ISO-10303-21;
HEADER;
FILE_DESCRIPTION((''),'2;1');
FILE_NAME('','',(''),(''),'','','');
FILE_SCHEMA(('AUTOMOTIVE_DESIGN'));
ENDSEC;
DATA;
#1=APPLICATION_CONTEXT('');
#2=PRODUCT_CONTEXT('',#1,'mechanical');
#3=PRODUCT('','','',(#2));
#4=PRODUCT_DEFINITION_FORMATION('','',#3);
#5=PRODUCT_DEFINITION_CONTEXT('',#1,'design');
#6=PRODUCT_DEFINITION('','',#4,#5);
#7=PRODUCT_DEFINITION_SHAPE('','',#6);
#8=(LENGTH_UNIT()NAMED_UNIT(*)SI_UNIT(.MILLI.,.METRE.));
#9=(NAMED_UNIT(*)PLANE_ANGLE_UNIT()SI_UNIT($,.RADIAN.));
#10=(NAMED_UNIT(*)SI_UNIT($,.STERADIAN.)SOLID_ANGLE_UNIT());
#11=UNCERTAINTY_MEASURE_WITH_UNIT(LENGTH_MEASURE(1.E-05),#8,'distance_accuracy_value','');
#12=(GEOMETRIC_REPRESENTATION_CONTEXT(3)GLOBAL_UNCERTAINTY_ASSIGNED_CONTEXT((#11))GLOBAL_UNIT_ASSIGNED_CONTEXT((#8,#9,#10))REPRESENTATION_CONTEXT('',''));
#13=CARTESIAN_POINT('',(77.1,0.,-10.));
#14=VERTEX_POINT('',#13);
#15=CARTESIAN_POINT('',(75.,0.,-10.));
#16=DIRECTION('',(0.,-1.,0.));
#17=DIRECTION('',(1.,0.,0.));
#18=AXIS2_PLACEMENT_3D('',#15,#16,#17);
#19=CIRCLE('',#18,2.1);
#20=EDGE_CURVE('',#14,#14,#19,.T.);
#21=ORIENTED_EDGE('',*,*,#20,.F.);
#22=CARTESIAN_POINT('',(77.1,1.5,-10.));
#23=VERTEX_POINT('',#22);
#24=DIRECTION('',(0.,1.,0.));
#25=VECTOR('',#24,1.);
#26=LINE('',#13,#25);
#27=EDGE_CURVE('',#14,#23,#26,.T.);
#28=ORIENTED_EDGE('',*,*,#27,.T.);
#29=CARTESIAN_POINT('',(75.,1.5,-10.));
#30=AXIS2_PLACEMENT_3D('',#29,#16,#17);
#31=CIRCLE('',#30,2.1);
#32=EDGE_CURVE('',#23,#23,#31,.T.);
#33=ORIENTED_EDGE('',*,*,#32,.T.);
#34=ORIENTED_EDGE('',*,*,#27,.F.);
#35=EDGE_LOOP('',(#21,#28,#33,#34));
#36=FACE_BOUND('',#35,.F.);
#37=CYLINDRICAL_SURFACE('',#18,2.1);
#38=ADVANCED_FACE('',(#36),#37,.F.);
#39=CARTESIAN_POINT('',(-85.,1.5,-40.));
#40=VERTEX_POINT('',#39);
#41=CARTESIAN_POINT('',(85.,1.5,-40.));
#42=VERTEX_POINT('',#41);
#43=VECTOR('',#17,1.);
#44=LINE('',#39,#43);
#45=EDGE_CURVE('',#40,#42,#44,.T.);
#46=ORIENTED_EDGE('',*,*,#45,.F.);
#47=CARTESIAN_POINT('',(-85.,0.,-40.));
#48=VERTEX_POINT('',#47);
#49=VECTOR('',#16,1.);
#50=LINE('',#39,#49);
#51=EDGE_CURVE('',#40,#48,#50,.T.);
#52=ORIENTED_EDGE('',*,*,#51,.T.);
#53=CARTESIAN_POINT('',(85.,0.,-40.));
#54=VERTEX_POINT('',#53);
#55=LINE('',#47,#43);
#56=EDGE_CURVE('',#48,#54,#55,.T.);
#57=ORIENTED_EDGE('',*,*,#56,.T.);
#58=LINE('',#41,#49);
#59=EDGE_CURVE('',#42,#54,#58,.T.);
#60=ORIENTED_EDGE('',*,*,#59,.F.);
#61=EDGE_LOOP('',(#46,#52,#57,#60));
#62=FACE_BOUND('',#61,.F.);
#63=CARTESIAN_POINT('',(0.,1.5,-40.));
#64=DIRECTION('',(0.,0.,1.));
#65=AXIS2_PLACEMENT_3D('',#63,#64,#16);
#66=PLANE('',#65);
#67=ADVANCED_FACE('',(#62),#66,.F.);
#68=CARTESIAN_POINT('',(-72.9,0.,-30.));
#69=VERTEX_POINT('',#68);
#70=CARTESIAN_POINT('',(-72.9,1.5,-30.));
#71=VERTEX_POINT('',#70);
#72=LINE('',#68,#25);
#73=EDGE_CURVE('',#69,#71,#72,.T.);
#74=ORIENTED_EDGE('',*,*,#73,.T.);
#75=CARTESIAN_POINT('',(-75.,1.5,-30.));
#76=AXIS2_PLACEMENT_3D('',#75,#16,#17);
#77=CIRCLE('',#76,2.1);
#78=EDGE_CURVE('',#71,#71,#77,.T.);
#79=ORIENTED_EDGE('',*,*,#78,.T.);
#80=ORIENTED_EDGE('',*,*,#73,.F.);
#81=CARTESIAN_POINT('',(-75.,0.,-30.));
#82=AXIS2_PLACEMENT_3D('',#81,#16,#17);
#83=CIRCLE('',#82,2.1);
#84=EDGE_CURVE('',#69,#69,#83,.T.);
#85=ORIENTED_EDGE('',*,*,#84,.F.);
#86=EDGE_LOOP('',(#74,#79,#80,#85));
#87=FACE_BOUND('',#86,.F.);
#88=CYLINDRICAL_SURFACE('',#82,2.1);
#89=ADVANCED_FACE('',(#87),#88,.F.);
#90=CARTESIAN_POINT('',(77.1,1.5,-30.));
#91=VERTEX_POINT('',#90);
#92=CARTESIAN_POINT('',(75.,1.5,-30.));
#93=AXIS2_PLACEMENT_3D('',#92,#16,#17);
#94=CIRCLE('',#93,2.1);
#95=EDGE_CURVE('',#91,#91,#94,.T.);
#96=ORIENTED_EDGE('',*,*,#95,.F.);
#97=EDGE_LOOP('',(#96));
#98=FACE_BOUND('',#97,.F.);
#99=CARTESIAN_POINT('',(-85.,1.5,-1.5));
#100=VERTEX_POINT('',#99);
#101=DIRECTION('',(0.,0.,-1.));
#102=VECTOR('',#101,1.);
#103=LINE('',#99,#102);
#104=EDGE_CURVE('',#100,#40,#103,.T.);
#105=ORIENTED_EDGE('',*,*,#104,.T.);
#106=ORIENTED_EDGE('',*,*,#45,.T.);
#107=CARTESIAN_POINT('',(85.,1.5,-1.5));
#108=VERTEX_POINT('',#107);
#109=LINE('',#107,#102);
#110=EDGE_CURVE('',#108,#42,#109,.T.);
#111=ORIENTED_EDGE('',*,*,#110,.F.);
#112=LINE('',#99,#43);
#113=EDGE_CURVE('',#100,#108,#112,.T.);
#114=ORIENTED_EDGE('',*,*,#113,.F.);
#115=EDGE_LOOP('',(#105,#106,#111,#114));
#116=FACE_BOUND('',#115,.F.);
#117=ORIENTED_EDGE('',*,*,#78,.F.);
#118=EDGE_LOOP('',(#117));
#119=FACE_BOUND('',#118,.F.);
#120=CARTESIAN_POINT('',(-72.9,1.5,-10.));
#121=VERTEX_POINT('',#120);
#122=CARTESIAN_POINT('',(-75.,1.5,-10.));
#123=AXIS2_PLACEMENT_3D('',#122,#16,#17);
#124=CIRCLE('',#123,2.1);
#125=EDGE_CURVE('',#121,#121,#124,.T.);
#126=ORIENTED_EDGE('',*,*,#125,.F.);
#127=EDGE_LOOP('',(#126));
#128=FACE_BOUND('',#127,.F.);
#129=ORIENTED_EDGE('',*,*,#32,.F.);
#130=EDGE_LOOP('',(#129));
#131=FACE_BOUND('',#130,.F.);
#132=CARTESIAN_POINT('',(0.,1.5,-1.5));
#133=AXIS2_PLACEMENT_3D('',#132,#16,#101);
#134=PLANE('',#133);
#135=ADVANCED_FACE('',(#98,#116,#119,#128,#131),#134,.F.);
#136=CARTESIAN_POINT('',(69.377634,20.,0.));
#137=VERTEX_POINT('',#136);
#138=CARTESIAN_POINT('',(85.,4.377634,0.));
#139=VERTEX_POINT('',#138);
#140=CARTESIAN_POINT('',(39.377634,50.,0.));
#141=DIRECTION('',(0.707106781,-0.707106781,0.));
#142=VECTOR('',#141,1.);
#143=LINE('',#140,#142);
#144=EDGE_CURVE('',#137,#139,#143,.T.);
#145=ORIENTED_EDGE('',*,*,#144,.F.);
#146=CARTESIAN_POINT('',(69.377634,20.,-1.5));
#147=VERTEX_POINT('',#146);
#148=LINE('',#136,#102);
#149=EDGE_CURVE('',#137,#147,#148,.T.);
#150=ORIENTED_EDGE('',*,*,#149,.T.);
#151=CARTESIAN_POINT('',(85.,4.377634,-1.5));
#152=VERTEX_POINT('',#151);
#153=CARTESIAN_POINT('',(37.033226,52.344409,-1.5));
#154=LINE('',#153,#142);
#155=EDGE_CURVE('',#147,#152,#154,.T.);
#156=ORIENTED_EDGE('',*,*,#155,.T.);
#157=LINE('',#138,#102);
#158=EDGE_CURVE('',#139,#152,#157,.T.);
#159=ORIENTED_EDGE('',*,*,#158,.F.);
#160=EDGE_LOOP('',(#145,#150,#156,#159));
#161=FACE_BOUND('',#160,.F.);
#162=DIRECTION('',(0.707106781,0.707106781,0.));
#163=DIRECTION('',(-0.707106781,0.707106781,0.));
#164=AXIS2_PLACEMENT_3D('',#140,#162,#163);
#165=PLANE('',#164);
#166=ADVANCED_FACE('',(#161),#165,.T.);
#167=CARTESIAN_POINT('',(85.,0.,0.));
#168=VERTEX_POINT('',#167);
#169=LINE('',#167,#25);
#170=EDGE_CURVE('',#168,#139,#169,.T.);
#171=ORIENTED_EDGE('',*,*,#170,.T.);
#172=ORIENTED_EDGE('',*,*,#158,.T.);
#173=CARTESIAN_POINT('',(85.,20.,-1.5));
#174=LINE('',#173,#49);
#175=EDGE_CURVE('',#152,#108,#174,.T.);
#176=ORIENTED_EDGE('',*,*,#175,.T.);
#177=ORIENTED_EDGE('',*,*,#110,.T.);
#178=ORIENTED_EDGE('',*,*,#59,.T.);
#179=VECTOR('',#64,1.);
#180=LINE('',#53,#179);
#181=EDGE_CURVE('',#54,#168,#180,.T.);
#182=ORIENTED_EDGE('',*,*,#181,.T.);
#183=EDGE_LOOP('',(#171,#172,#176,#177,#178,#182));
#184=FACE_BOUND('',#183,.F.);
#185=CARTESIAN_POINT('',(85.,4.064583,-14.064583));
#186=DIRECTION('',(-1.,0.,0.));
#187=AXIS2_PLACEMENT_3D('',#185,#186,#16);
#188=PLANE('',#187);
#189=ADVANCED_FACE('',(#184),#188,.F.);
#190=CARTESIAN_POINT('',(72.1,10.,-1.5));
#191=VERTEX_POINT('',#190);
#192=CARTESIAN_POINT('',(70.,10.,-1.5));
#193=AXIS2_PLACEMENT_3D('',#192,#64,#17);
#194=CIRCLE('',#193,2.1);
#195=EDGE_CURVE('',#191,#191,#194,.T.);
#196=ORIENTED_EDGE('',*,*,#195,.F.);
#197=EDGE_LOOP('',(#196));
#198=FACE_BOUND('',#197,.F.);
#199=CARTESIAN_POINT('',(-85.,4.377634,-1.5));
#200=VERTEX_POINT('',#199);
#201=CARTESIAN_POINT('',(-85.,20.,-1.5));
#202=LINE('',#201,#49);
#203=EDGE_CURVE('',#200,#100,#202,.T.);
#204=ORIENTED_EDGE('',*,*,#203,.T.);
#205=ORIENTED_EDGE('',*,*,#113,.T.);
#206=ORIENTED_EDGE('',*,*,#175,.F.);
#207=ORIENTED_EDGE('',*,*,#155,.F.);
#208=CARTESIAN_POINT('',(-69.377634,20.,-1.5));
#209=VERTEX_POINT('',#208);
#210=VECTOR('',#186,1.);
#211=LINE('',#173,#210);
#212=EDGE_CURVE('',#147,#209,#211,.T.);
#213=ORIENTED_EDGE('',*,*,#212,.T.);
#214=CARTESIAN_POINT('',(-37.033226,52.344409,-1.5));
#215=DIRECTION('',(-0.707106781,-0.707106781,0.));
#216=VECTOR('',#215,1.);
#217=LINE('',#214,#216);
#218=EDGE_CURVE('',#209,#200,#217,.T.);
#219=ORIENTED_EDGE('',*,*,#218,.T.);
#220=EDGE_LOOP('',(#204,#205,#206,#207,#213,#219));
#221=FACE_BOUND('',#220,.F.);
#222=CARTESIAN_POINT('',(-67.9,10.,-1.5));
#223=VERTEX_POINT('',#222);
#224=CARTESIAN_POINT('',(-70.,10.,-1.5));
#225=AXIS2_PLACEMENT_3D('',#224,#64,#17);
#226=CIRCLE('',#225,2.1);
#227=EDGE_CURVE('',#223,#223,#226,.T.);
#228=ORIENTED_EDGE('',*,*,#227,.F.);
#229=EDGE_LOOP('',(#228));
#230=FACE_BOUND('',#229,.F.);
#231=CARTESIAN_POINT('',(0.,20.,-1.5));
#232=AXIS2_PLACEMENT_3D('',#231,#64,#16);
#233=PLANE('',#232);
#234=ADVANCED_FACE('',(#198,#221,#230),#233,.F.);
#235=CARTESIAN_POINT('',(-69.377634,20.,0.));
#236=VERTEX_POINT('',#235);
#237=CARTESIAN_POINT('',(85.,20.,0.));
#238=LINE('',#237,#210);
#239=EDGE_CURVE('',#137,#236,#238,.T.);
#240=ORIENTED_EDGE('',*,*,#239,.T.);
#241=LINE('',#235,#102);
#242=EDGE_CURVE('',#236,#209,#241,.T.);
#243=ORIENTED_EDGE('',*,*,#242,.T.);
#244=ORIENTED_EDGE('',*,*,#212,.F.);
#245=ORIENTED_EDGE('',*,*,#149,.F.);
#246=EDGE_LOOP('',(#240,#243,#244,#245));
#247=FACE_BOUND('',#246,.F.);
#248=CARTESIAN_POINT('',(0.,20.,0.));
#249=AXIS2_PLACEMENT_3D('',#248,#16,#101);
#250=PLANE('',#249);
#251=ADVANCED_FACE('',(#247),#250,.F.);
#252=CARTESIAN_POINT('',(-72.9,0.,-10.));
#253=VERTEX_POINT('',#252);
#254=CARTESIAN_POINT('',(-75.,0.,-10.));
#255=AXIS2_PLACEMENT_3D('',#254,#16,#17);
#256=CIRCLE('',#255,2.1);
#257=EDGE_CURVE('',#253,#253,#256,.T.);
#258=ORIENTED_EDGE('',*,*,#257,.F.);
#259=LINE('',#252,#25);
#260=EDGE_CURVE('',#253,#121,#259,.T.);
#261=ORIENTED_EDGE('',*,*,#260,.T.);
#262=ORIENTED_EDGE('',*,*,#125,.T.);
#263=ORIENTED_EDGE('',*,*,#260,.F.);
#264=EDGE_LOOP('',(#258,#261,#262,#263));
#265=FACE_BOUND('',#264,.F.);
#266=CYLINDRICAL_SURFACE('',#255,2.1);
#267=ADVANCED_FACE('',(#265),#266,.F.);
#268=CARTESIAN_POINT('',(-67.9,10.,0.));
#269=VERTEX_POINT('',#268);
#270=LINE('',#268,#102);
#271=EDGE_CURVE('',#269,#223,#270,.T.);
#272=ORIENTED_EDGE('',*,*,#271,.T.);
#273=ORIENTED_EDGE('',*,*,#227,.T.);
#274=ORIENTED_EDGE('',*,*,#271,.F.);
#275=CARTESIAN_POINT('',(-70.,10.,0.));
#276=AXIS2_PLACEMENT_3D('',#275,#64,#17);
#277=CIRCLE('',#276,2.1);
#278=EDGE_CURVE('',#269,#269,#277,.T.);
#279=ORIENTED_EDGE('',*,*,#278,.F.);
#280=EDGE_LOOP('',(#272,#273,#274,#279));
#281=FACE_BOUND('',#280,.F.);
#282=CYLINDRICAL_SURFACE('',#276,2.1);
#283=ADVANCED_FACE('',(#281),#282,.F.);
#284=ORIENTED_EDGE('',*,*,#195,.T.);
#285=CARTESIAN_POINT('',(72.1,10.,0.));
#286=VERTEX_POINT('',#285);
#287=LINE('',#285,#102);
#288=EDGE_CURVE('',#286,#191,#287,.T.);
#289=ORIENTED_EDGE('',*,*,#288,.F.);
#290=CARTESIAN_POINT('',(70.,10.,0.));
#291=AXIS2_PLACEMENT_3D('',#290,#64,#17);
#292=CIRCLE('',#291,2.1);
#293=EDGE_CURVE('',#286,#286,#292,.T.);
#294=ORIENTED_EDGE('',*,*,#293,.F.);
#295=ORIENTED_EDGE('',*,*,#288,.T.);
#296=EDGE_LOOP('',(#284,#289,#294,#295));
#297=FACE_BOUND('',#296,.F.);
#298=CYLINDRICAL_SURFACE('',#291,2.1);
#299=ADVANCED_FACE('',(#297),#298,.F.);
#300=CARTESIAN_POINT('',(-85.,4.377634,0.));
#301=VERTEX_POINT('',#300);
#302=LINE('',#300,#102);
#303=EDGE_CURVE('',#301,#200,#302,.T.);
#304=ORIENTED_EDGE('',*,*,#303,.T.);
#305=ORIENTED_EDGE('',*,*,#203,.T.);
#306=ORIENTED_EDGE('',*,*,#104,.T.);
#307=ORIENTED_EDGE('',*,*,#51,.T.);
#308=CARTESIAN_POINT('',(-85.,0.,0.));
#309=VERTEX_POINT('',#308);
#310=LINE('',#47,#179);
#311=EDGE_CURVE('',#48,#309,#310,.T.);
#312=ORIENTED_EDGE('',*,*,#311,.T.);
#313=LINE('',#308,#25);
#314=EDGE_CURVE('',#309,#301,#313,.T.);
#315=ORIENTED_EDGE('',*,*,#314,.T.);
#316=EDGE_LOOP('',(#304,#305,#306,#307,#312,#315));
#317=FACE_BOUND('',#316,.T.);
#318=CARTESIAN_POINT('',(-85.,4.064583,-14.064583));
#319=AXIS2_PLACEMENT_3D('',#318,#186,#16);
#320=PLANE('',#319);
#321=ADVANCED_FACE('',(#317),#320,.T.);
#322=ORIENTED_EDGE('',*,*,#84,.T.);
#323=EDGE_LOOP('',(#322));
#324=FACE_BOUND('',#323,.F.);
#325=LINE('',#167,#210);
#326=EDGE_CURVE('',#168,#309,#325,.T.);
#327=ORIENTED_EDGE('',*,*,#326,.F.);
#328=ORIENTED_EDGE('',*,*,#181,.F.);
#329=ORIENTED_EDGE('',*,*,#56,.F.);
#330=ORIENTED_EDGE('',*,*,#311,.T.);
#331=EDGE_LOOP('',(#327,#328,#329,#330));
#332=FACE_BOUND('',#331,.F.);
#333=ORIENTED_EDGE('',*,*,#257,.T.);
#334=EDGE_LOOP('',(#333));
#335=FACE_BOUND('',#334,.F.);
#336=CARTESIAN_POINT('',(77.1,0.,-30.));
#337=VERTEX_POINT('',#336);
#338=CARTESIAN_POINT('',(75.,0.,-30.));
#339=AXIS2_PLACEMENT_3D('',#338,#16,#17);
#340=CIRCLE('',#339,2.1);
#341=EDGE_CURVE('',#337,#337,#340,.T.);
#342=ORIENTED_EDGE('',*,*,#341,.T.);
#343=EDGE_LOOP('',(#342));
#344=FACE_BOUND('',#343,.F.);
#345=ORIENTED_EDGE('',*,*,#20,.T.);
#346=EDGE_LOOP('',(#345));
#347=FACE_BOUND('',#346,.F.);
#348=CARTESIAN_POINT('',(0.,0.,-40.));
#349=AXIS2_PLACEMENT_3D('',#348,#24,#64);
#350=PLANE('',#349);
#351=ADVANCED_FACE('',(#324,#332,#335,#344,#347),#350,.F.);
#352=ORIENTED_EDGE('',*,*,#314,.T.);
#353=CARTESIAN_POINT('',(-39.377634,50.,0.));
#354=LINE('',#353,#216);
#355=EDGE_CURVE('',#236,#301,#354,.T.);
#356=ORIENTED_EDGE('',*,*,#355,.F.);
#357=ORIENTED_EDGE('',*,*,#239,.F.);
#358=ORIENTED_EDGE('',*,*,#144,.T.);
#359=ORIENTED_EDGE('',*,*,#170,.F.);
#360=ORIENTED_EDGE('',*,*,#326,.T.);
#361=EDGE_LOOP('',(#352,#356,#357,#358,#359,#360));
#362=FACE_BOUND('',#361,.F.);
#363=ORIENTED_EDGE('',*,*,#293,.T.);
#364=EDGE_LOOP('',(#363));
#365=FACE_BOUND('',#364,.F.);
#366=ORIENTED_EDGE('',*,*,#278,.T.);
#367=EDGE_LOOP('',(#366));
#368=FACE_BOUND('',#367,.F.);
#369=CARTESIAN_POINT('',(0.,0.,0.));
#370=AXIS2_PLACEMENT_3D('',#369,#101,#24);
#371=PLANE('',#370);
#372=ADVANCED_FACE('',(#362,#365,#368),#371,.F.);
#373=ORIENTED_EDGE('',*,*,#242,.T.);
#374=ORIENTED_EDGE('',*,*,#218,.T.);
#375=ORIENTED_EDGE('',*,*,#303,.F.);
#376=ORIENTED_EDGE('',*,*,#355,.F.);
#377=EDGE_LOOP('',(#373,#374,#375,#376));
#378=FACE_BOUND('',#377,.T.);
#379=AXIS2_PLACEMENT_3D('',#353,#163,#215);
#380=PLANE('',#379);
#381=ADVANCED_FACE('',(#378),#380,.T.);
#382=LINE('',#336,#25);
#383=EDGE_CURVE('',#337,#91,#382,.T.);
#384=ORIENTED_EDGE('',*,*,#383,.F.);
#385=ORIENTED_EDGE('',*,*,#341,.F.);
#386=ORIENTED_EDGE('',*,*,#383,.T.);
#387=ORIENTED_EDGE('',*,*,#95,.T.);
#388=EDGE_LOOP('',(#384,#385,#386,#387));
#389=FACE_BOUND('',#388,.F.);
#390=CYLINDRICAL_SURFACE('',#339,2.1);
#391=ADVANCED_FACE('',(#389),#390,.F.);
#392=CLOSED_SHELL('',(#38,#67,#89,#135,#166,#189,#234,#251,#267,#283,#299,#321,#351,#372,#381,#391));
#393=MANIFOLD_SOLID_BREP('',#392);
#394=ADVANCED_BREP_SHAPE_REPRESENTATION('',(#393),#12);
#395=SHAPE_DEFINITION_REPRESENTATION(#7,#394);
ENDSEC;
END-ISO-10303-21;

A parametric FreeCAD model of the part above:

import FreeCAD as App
import Part
import Sketcher

V = App.Vector
Q = App.Units.Quantity

doc = App.newDocument("Part")
params = doc.addObject("Spreadsheet::Sheet", "Params")
for row, (alias, value) in enumerate([
    ("sketch1_width", "20 mm"),
    ("sketch1_height", "40 mm"),
    ("sketch1_width2", "1.5 mm"),
    ("pad1_length", "170 mm"),
    ("sketch2_diameter", "4.2 mm"),
    ("sketch3_diameter", "4.2 mm"),
], start=1):
    params.set(f"A{row}", alias)
    params.set(f"B{row}", "=" + value)
    params.setAlias(f"B{row}", alias)

body = doc.addObject("PartDesign::Body", "Body")

# Sketch on YZ plane
sketch1 = body.newObject("Sketcher::SketchObject", "Sketch")
sketch1.AttachmentSupport = (doc.getObject("YZ_Plane"), [""])
sketch1.MapMode = "FlatFace"
sketch1.addGeometry(Part.LineSegment(V(0, 0, 0), V(0, -40, 0)), False)
sketch1.addGeometry(Part.LineSegment(V(0, -40, 0), V(1.5, -40, 0)), False)
sketch1.addGeometry(Part.LineSegment(V(1.5, -40, 0), V(1.5, -1.5, 0)), False)
sketch1.addGeometry(Part.LineSegment(V(1.5, -1.5, 0), V(20, -1.5, 0)), False)
sketch1.addGeometry(Part.LineSegment(V(20, -1.5, 0), V(20, 0, 0)), False)
sketch1.addGeometry(Part.LineSegment(V(20, 0, 0), V(0, 0, 0)), False)
sketch1.addConstraint(Sketcher.Constraint("Coincident", 0, 2, 1, 1))
sketch1.addConstraint(Sketcher.Constraint("Coincident", 1, 2, 2, 1))
sketch1.addConstraint(Sketcher.Constraint("Coincident", 2, 2, 3, 1))
sketch1.addConstraint(Sketcher.Constraint("Coincident", 3, 2, 4, 1))
sketch1.addConstraint(Sketcher.Constraint("Coincident", 4, 2, 5, 1))
sketch1.addConstraint(Sketcher.Constraint("Coincident", 5, 2, 0, 1))
sketch1.addConstraint(Sketcher.Constraint("Vertical", 0))
sketch1.addConstraint(Sketcher.Constraint("Horizontal", 1))
sketch1.addConstraint(Sketcher.Constraint("Vertical", 2))
sketch1.addConstraint(Sketcher.Constraint("Horizontal", 3))
sketch1.addConstraint(Sketcher.Constraint("Vertical", 4))
sketch1.addConstraint(Sketcher.Constraint("Horizontal", 5))
sketch1.addConstraint(Sketcher.Constraint("Coincident", 5, 2, -1, 1))
sketch1.addConstraint(Sketcher.Constraint("Equal", 1, 4))
sketch1.addConstraint(Sketcher.Constraint("DistanceX", 5, 2, 5, 1, Q("20 mm")))
sketch1.addConstraint(Sketcher.Constraint("DistanceY", 0, 2, 0, 1, Q("40 mm")))
sketch1.addConstraint(Sketcher.Constraint("DistanceX", 1, 1, 1, 2, Q("1.5 mm")))
sketch1.setExpression("Constraints[14]", "Params.sketch1_width")
sketch1.setExpression("Constraints[15]", "Params.sketch1_height")
sketch1.setExpression("Constraints[16]", "Params.sketch1_width2")
pad1 = body.newObject("PartDesign::Pad", "Pad")
pad1.Profile = sketch1
pad1.setExpression("Length", "Params.pad1_length")
pad1.Midplane = True

# Sketch on XZ plane
sketch2 = body.newObject("Sketcher::SketchObject", "Sketch001")
sketch2.AttachmentSupport = (doc.getObject("XZ_Plane"), [""])
sketch2.MapMode = "FlatFace"
sketch2.addGeometry(Part.Circle(V(-75, -30, 0), V(0, 0, 1), 2.1), False)
sketch2.addGeometry(Part.Circle(V(75, -30, 0), V(0, 0, 1), 2.1), False)
sketch2.addGeometry(Part.Circle(V(-75, -10, 0), V(0, 0, 1), 2.1), False)
sketch2.addGeometry(Part.Circle(V(75, -10, 0), V(0, 0, 1), 2.1), False)
sketch2.addConstraint(Sketcher.Constraint("Equal", 0, 1))
sketch2.addConstraint(Sketcher.Constraint("Equal", 1, 2))
sketch2.addConstraint(Sketcher.Constraint("Equal", 2, 3))
sketch2.addConstraint(Sketcher.Constraint("Symmetric", 0, 3, 1, 3, -2))
sketch2.addConstraint(Sketcher.Constraint("Symmetric", 2, 3, 3, 3, -2))
sketch2.addConstraint(Sketcher.Constraint("Vertical", 0, 3, 2, 3))
sketch2.addConstraint(Sketcher.Constraint("Diameter", 0, Q("4.2 mm")))
sketch2.addConstraint(Sketcher.Constraint("DistanceX", 0, 3, -1, 1, Q("75 mm")))
sketch2.addConstraint(Sketcher.Constraint("DistanceY", 0, 3, -1, 1, Q("30 mm")))
sketch2.addConstraint(Sketcher.Constraint("DistanceY", 2, 3, -1, 1, Q("10 mm")))
sketch2.setExpression("Constraints[6]", "Params.sketch2_diameter")
pocket1 = body.newObject("PartDesign::Pocket", "Pocket")
pocket1.Profile = sketch2
pocket1.Type = "ThroughAll"

# Sketch on XY plane
sketch3 = body.newObject("Sketcher::SketchObject", "Sketch002")
sketch3.AttachmentSupport = (doc.getObject("XY_Plane"), [""])
sketch3.MapMode = "FlatFace"
sketch3.addGeometry(Part.Circle(V(-70, 10, 0), V(0, 0, 1), 2.1), False)
sketch3.addGeometry(Part.Circle(V(70, 10, 0), V(0, 0, 1), 2.1), False)
sketch3.addConstraint(Sketcher.Constraint("Equal", 0, 1))
sketch3.addConstraint(Sketcher.Constraint("Symmetric", 0, 3, 1, 3, -2))
sketch3.addConstraint(Sketcher.Constraint("Diameter", 0, Q("4.2 mm")))
sketch3.addConstraint(Sketcher.Constraint("DistanceX", 0, 3, -1, 1, Q("70 mm")))
sketch3.addConstraint(Sketcher.Constraint("DistanceY", -1, 1, 0, 3, Q("10 mm")))
sketch3.setExpression("Constraints[2]", "Params.sketch3_diameter")
pocket2 = body.newObject("PartDesign::Pocket", "Pocket001")
pocket2.Profile = sketch3
pocket2.Type = "ThroughAll"

# Sketch on XY plane
sketch4 = body.newObject("Sketcher::SketchObject", "Sketch003")
sketch4.AttachmentSupport = (doc.getObject("XY_Plane"), [""])
sketch4.MapMode = "FlatFace"
sketch4.addGeometry(Part.LineSegment(V(-85, 50, 0), V(-85, 4, 0)), False)
sketch4.addGeometry(Part.LineSegment(V(-85, 4, 0), V(-39, 50, 0)), False)
sketch4.addGeometry(Part.LineSegment(V(-39, 50, 0), V(-85, 50, 0)), False)
sketch4.addConstraint(Sketcher.Constraint("Coincident", 0, 2, 1, 1))
sketch4.addConstraint(Sketcher.Constraint("Coincident", 1, 2, 2, 1))
sketch4.addConstraint(Sketcher.Constraint("Coincident", 2, 2, 0, 1))
sketch4.addConstraint(Sketcher.Constraint("Vertical", 0))
sketch4.addConstraint(Sketcher.Constraint("Horizontal", 2))
sketch4.addConstraint(Sketcher.Constraint("Equal", 2, 0))
sketch4.addConstraint(Sketcher.Constraint("DistanceX", 0, 2, -1, 1, Q("85 mm")))
sketch4.addConstraint(Sketcher.Constraint("DistanceY", -1, 1, 1, 2, Q("50 mm")))
sketch4.addConstraint(Sketcher.Constraint("Distance", 1, Q("64.519769 mm")))
pocket3 = body.newObject("PartDesign::Pocket", "Pocket002")
pocket3.Profile = sketch4
pocket3.Type = "ThroughAll"
doc.recompute()

mirrored = body.newObject("PartDesign::Mirrored", "Mirrored")
mirrored.Originals = [pocket3]
mirrored.MirrorPlane = (doc.getObject("YZ_Plane"), [""])
body.Tip = mirrored

doc.recompute()
